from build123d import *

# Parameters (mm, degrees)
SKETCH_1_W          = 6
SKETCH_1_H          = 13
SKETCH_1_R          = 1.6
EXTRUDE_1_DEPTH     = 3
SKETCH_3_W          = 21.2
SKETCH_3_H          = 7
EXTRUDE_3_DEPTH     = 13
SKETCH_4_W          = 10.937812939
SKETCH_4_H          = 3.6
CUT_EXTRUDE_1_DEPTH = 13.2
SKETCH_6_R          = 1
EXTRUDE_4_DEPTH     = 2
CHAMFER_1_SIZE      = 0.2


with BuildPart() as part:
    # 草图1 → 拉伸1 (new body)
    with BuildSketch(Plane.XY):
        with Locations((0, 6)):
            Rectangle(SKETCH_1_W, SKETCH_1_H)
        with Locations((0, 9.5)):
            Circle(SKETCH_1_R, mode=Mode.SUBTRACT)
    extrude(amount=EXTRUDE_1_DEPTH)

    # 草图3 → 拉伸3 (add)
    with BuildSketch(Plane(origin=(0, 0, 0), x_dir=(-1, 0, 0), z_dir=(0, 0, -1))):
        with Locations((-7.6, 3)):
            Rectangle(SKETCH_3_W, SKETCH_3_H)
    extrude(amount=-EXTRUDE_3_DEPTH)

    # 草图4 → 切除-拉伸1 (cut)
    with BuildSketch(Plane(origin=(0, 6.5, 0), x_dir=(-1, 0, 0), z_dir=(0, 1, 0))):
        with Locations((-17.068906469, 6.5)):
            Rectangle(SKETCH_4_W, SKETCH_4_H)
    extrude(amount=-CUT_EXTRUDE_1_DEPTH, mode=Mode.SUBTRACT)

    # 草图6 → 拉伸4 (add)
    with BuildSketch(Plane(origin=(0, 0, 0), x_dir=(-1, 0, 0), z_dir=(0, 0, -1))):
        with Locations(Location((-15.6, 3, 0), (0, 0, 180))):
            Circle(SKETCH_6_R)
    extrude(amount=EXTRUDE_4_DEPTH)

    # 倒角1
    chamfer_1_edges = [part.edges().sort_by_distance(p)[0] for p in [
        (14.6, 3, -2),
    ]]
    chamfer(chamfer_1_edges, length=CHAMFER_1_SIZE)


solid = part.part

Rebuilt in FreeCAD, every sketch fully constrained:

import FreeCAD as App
import Part
import Sketcher

V = App.Vector


def edges_at(feature, points):
    """Names of the edges that pass closest to the given points."""
    edges = feature.Shape.Edges
    near = lambda p: min(range(len(edges)), key=lambda i: edges[i].distToShape(Part.Vertex(*p))[0])
    return sorted({f"Edge{near(p) + 1}" for p in points})

doc = App.newDocument("Part")
body = doc.addObject("PartDesign::Body", "Body")

# Sketch on XY plane
sketch1 = body.newObject("Sketcher::SketchObject", "Sketch")
sketch1.AttachmentSupport = (doc.getObject("XY_Plane"), [""])
sketch1.MapMode = "FlatFace"
sketch1.addGeometry(Part.LineSegment(V(-3, 12.5, 0), V(-3, -0.5, 0)), False)
sketch1.addGeometry(Part.LineSegment(V(-3, -0.5, 0), V(3, -0.5, 0)), False)
sketch1.addGeometry(Part.LineSegment(V(3, -0.5, 0), V(3, 12.5, 0)), False)
sketch1.addGeometry(Part.LineSegment(V(3, 12.5, 0), V(-3, 12.5, 0)), False)
sketch1.addGeometry(Part.Circle(V(0, 9.5, 0), V(0, 0, 1), 1.6), False)
sketch1.addConstraint(Sketcher.Constraint("Coincident", 0, 2, 1, 1))
sketch1.addConstraint(Sketcher.Constraint("Coincident", 1, 2, 2, 1))
sketch1.addConstraint(Sketcher.Constraint("Coincident", 2, 2, 3, 1))
sketch1.addConstraint(Sketcher.Constraint("Coincident", 3, 2, 0, 1))
sketch1.addConstraint(Sketcher.Constraint("Vertical", 0))
sketch1.addConstraint(Sketcher.Constraint("Horizontal", 1))
sketch1.addConstraint(Sketcher.Constraint("Vertical", 2))
sketch1.addConstraint(Sketcher.Constraint("Horizontal", 3))
sketch1.addConstraint(Sketcher.Constraint("PointOnObject", 4, 3, -2))
sketch1.addConstraint(Sketcher.Constraint("Diameter", 4, 3.2))
sketch1.addConstraint(Sketcher.Constraint("DistanceX", 1, 1, 1, 2, 6.0))
sketch1.addConstraint(Sketcher.Constraint("DistanceY", 0, 2, 0, 1, 13.0))
sketch1.addConstraint(Sketcher.Constraint("DistanceX", 0, 2, -1, 1, 3.0))
sketch1.addConstraint(Sketcher.Constraint("DistanceY", 0, 2, 4, 3, 10.0))
sketch1.addConstraint(Sketcher.Constraint("DistanceY", -1, 1, 4, 3, 9.5))
pad1 = body.newObject("PartDesign::Pad", "Pad")
pad1.Profile = sketch1
pad1.Length = 3

# Sketch on XY plane
sketch2 = body.newObject("Sketcher::SketchObject", "Sketch001")
sketch2.AttachmentSupport = (doc.getObject("XY_Plane"), [""])
sketch2.MapMode = "FlatFace"
sketch2.addGeometry(Part.LineSegment(V(18, 6, 0), V(18, 0, 0)), False)
sketch2.addGeometry(Part.LineSegment(V(18, 0, 0), V(-3, 0, 0)), False)
sketch2.addGeometry(Part.LineSegment(V(-3, 0, 0), V(-3, 6, 0)), False)
sketch2.addGeometry(Part.LineSegment(V(-3, 6, 0), V(18, 6, 0)), False)
sketch2.addConstraint(Sketcher.Constraint("Coincident", 0, 2, 1, 1))
sketch2.addConstraint(Sketcher.Constraint("Coincident", 1, 2, 2, 1))
sketch2.addConstraint(Sketcher.Constraint("Coincident", 2, 2, 3, 1))
sketch2.addConstraint(Sketcher.Constraint("Coincident", 3, 2, 0, 1))
sketch2.addConstraint(Sketcher.Constraint("Vertical", 0))
sketch2.addConstraint(Sketcher.Constraint("Horizontal", 1))
sketch2.addConstraint(Sketcher.Constraint("Vertical", 2))
sketch2.addConstraint(Sketcher.Constraint("Horizontal", 3))
sketch2.addConstraint(Sketcher.Constraint("DistanceY", 0, 2, 0, 1, 7.0))
sketch2.addConstraint(Sketcher.Constraint("DistanceX", 1, 2, 1, 1, 21.2))
sketch2.addConstraint(Sketcher.Constraint("DistanceX", 1, 2, -1, 1, 3.0))
sketch2.addConstraint(Sketcher.Constraint("DistanceY", 0, 2, -1, 1, 0.5))
pad2 = body.newObject("PartDesign::Pad", "Pad001")
pad2.Profile = sketch2
pad2.Length = 13

# Sketch on XZ plane
sketch3 = body.newObject("Sketcher::SketchObject", "Sketch002")
sketch3.AttachmentSupport = (doc.getObject("XZ_Plane"), [""])
sketch3.MapMode = "FlatFace"
sketch3.AttachmentOffset = App.Placement(V(0, 0, -6.5), App.Rotation())
sketch3.addGeometry(Part.LineSegment(V(22.5, 8.3, 0), V(22.5, 4.7, 0)), False)
sketch3.addGeometry(Part.LineSegment(V(22.5, 4.7, 0), V(11.6, 4.7, 0)), False)
sketch3.addGeometry(Part.LineSegment(V(11.6, 4.7, 0), V(11.6, 8.3, 0)), False)
sketch3.addGeometry(Part.LineSegment(V(11.6, 8.3, 0), V(22.5, 8.3, 0)), False)
sketch3.addConstraint(Sketcher.Constraint("Coincident", 0, 2, 1, 1))
sketch3.addConstraint(Sketcher.Constraint("Coincident", 1, 2, 2, 1))
sketch3.addConstraint(Sketcher.Constraint("Coincident", 2, 2, 3, 1))
sketch3.addConstraint(Sketcher.Constraint("Coincident", 3, 2, 0, 1))
sketch3.addConstraint(Sketcher.Constraint("Vertical", 0))
sketch3.addConstraint(Sketcher.Constraint("Horizontal", 1))
sketch3.addConstraint(Sketcher.Constraint("Vertical", 2))
sketch3.addConstraint(Sketcher.Constraint("Horizontal", 3))
sketch3.addConstraint(Sketcher.Constraint("DistanceY", 0, 2, 0, 1, 3.6))
sketch3.addConstraint(Sketcher.Constraint("DistanceY", -1, 1, 0, 2, 4.7))
sketch3.addConstraint(Sketcher.Constraint("DistanceX", -1, 1, 1, 2, 11.6))
sketch3.addConstraint(Sketcher.Constraint("DistanceX", 1, 2, 1, 1, 10.937813))
pocket1 = body.newObject("PartDesign::Pocket", "Pocket")
pocket1.Profile = sketch3
pocket1.Length = 13.2
pocket1.Reversed = True

# Sketch on XY plane
sketch4 = body.newObject("Sketcher::SketchObject", "Sketch003")
sketch4.AttachmentSupport = (doc.getObject("XY_Plane"), [""])
sketch4.MapMode = "FlatFace"
sketch4.addGeometry(Part.Circle(V(15.6, 3, 0), V(0, 0, 1), 1), False)
sketch4.addConstraint(Sketcher.Constraint("Diameter", 0, 2.0))
sketch4.addConstraint(Sketcher.Constraint("DistanceY", -1, 1, 0, 3, 3.0))
sketch4.addConstraint(Sketcher.Constraint("DistanceX", -1, 1, 0, 3, 15.6))
pad3 = body.newObject("PartDesign::Pad", "Pad002")
pad3.Profile = sketch4
pad3.Length = 2
pad3.Reversed = True
doc.recompute()

chamfer = body.newObject("PartDesign::Chamfer", "Chamfer")
chamfer.Base = (pad3, edges_at(pad3, [(14.6, 3, -2)]))
chamfer.Size = 0.2

doc.recompute()
